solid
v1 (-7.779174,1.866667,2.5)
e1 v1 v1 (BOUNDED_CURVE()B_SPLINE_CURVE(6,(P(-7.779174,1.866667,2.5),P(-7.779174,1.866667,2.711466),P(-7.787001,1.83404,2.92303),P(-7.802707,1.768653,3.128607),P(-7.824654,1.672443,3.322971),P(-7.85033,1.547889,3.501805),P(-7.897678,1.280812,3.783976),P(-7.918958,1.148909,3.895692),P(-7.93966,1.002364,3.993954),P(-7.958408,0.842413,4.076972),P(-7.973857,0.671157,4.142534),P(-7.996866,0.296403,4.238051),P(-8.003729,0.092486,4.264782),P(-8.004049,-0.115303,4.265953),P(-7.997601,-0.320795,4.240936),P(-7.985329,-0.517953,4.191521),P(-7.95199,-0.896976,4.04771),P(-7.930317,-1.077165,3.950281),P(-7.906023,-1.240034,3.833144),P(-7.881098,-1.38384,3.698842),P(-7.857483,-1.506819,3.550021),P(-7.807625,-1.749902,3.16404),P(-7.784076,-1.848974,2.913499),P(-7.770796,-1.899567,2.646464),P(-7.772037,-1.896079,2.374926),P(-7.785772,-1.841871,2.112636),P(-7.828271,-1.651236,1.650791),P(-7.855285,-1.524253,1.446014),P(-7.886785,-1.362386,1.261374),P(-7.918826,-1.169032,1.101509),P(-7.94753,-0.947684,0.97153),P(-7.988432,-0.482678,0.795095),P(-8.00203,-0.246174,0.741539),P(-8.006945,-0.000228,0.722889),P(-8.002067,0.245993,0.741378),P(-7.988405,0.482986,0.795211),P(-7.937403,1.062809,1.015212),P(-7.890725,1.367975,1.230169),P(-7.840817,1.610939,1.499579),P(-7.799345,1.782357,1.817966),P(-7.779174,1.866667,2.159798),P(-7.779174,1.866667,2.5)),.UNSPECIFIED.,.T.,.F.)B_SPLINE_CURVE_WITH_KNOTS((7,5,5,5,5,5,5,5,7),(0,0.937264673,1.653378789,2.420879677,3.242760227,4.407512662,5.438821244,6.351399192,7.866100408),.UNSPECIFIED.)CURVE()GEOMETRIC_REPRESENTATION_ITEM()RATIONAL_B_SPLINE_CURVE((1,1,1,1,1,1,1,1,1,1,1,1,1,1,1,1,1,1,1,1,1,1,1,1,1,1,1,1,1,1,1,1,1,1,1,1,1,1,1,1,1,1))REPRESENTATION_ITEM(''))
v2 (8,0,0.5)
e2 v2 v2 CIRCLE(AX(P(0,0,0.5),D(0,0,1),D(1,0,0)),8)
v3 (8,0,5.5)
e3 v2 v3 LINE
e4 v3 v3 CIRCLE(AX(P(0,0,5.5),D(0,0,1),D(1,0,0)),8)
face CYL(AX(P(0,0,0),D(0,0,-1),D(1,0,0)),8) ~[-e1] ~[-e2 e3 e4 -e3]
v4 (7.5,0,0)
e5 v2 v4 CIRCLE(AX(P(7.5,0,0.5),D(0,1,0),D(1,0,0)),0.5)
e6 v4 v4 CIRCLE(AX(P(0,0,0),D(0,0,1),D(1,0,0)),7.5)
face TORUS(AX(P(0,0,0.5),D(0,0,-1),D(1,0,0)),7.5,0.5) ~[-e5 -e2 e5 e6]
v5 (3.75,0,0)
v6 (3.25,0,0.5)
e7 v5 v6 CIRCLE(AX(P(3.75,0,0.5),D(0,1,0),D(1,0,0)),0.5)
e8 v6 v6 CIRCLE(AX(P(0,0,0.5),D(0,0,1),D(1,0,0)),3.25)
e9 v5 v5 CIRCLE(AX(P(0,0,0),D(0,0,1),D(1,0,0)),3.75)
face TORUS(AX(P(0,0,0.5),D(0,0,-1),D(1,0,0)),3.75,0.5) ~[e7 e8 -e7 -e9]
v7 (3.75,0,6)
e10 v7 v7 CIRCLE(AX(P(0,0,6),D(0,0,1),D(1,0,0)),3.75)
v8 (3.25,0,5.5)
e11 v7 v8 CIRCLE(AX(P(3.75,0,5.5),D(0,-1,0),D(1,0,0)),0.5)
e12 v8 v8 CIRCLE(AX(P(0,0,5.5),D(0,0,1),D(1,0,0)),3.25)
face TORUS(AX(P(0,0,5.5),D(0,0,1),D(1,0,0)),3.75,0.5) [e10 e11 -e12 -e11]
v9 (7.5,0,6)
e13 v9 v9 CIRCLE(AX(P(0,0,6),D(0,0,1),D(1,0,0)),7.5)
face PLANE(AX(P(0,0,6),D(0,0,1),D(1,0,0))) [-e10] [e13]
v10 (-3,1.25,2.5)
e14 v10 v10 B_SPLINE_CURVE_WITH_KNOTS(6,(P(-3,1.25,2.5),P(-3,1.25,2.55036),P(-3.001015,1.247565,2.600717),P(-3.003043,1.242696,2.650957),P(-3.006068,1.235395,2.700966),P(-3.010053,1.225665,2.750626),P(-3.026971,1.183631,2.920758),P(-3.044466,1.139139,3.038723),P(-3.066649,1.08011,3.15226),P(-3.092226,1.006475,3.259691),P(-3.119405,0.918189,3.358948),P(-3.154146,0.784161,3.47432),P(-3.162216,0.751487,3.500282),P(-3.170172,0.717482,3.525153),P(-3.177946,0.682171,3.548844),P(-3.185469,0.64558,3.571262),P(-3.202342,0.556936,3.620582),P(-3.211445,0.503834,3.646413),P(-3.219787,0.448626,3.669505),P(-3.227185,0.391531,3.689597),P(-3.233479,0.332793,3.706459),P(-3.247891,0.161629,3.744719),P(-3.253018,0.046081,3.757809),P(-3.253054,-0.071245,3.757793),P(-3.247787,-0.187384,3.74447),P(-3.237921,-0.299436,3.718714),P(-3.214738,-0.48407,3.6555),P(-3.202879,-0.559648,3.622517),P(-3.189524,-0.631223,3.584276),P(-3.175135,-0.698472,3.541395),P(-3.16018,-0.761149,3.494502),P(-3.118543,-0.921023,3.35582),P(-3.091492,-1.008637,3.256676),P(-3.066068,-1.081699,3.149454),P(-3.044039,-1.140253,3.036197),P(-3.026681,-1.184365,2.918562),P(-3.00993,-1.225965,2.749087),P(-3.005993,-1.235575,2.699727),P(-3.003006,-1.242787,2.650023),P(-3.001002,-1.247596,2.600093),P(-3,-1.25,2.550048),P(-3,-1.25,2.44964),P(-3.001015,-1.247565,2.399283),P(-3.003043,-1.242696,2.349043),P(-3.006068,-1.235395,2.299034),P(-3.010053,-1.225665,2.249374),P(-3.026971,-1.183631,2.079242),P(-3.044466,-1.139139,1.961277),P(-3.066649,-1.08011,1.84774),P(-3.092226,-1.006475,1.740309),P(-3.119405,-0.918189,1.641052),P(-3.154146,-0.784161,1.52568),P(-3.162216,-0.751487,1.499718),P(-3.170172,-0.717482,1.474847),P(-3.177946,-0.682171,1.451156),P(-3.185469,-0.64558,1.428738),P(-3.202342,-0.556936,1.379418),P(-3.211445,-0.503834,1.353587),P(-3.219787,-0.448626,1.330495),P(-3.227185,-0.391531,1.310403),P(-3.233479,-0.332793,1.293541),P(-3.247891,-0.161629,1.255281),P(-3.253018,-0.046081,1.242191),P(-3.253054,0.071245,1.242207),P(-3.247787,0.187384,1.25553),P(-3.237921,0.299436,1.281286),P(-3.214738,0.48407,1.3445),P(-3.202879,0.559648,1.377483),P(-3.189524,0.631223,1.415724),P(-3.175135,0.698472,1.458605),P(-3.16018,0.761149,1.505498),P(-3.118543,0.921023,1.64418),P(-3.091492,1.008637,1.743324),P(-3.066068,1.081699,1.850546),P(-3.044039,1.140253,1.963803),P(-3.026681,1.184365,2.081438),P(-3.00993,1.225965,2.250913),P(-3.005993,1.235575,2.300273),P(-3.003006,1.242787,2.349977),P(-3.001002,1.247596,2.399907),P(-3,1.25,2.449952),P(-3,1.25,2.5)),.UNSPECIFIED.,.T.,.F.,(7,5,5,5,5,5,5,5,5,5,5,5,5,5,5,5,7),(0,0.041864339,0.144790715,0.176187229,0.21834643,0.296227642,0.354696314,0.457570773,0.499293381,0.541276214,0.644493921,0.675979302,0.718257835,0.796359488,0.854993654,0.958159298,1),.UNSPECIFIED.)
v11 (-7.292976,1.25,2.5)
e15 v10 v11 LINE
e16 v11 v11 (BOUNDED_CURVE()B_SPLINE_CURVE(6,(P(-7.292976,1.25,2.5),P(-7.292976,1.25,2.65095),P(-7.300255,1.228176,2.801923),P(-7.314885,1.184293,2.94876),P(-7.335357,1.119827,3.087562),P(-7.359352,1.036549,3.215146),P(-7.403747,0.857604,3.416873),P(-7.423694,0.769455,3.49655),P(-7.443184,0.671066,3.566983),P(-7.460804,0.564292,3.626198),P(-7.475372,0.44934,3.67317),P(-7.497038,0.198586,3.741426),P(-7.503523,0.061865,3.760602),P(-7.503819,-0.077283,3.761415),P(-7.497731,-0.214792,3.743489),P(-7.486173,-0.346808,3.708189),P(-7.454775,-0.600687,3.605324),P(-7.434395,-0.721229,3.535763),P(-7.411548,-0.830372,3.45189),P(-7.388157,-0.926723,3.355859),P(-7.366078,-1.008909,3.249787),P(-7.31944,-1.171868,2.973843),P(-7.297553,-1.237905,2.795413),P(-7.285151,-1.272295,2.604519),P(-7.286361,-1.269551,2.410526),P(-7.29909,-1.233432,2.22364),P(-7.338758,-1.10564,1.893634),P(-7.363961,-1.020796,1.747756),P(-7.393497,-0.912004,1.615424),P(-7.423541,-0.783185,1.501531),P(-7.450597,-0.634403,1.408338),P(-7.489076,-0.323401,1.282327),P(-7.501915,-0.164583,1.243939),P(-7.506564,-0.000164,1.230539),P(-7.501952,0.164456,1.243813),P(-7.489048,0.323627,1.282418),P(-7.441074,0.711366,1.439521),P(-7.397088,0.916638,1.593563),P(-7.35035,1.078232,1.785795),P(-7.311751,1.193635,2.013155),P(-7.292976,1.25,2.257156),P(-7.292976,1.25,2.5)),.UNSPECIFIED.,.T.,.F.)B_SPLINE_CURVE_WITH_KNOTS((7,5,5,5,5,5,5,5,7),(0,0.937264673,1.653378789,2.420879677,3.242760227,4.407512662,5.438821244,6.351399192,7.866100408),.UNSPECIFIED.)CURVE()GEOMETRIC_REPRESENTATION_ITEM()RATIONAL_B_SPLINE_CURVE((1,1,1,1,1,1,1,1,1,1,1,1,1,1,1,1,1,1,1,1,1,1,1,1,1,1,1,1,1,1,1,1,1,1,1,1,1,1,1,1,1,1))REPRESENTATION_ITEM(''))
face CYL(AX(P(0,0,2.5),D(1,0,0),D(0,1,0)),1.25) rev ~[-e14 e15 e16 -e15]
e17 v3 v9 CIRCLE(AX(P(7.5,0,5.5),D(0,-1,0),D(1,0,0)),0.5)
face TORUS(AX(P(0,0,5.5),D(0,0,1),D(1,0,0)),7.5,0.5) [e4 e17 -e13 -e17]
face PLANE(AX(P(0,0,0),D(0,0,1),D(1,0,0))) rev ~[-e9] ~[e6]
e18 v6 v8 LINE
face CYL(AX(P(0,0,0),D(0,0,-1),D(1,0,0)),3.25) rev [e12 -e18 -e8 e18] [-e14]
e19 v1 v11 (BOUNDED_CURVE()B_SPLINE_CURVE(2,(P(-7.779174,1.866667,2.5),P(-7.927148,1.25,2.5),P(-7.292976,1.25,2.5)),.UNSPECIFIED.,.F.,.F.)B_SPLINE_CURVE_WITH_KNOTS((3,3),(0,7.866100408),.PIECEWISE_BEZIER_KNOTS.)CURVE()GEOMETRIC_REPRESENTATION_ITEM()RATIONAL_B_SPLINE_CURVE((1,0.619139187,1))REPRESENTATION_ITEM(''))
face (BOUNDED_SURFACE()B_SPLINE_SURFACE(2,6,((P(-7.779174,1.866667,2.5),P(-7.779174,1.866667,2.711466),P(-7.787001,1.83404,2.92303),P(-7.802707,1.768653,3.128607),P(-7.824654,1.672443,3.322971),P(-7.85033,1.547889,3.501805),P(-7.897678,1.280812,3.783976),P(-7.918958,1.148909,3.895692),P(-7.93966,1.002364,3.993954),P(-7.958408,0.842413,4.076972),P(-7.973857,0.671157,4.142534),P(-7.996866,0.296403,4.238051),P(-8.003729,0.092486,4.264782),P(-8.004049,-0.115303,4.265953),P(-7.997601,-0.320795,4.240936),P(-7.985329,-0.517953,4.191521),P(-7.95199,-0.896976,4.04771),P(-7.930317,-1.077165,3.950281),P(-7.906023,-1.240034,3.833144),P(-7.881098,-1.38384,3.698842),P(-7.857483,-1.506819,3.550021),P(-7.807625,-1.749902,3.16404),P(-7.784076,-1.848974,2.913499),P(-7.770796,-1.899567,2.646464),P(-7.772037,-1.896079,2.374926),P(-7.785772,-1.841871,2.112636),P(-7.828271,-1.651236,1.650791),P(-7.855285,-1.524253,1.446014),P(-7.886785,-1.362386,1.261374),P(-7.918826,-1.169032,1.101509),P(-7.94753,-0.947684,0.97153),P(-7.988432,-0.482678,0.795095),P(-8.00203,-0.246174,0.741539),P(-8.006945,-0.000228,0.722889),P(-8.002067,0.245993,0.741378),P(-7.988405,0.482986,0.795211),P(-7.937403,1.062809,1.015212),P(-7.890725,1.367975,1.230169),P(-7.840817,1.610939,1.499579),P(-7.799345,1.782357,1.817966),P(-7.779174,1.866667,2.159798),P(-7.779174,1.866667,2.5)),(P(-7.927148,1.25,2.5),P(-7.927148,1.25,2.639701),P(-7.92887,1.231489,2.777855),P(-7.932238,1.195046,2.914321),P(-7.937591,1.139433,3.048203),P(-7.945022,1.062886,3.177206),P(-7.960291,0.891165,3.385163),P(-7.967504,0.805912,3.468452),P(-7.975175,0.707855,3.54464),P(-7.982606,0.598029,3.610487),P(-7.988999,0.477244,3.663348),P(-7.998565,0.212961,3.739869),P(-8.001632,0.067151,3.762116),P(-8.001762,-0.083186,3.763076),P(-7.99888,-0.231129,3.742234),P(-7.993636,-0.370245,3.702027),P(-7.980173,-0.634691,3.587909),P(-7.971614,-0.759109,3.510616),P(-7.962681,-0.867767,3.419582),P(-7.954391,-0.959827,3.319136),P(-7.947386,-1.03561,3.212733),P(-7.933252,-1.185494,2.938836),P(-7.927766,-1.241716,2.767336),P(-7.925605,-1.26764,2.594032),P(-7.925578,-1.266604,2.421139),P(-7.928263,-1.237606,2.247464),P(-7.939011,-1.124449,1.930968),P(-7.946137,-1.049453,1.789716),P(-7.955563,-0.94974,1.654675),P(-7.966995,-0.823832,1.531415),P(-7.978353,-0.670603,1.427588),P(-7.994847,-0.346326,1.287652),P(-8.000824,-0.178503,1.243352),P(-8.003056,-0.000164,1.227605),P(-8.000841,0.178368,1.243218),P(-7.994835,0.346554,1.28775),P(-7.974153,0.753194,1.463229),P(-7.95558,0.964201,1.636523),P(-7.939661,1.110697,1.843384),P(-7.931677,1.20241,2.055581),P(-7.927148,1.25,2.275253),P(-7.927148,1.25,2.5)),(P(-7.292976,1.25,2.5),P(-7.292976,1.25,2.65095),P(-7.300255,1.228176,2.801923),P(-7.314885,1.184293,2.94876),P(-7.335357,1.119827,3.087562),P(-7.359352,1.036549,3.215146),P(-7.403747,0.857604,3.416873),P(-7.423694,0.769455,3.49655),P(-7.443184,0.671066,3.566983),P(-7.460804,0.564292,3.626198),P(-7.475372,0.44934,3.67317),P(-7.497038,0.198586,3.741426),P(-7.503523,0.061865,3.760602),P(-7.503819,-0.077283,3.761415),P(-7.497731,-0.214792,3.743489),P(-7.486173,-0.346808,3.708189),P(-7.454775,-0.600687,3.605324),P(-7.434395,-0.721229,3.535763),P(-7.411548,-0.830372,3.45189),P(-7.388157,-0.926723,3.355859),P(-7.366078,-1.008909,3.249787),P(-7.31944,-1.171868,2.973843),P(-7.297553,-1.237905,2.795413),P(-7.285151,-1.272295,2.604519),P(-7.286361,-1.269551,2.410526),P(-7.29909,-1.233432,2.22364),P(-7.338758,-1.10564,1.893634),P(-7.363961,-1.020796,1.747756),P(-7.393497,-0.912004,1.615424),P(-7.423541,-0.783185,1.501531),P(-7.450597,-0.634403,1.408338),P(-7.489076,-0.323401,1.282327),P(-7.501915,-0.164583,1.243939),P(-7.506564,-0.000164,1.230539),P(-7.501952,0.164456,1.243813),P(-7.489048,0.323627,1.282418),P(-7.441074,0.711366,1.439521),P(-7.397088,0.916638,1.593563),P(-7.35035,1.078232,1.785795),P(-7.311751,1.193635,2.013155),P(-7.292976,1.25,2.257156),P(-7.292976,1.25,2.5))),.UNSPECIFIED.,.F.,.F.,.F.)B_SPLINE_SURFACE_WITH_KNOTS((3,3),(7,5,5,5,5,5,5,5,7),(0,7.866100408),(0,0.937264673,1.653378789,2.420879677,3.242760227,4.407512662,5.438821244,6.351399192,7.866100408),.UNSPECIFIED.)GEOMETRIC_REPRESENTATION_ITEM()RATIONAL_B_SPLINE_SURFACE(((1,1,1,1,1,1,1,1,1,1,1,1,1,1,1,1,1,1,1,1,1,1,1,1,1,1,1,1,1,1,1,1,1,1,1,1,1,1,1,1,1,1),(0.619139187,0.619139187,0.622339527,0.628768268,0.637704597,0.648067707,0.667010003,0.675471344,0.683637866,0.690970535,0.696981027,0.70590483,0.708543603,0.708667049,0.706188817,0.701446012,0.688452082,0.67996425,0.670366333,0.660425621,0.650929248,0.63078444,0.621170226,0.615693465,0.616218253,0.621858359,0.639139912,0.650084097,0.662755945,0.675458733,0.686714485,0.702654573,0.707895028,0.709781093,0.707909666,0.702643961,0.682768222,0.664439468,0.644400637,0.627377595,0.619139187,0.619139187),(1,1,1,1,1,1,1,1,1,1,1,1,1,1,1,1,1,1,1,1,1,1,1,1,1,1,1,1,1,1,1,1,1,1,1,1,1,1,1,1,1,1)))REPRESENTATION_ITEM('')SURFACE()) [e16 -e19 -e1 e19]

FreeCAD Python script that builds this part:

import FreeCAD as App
import Part
import Sketcher

V = App.Vector


def edges_at(feature, points):
    """Names of the edges that pass closest to the given points."""
    edges = feature.Shape.Edges
    near = lambda p: min(range(len(edges)), key=lambda i: edges[i].distToShape(Part.Vertex(*p))[0])
    return sorted({f"Edge{near(p) + 1}" for p in points})

doc = App.newDocument("Part")
body = doc.addObject("PartDesign::Body", "Body")

sketch1 = doc.addObject("Sketcher::SketchObject", "Sketch")
body.addObject(sketch1)
sketch1.AttachmentSupport = (doc.XY_Plane, [""])
sketch1.MapMode = "FlatFace"
sketch1.addGeometry(Part.Circle(V(0, 0, 0), V(0, 0, 1), 8), False)
sketch1.addGeometry(Part.Circle(V(0, 0, 0), V(0, 0, 1), 3.2), False)
sketch1.addConstraint(Sketcher.Constraint("Coincident", 0, 3, -1, 1))
sketch1.addConstraint(Sketcher.Constraint("Coincident", 1, 3, -1, 1))
sketch1.addConstraint(Sketcher.Constraint("Diameter", 0, 16.0))
sketch1.addConstraint(Sketcher.Constraint("Diameter", 1, 6.5))
pad1 = doc.addObject("PartDesign::Pad", "Pad")
body.addObject(pad1)
pad1.Profile = sketch1
pad1.Length = 6

sketch2 = doc.addObject("Sketcher::SketchObject", "Sketch001")
body.addObject(sketch2)
sketch2.AttachmentSupport = (doc.YZ_Plane, [""])
sketch2.MapMode = "FlatFace"
sketch2.addGeometry(Part.Circle(V(0, 2.5, 0), V(0, 0, 1), 1.2), False)
sketch2.addConstraint(Sketcher.Constraint("PointOnObject", 0, 3, -2))
sketch2.addConstraint(Sketcher.Constraint("Diameter", 0, 2.5))
sketch2.addConstraint(Sketcher.Constraint("DistanceY", -1, 1, 0, 3, 2.5))
pocket1 = doc.addObject("PartDesign::Pocket", "Pocket")
body.addObject(pocket1)
pocket1.Profile = sketch2
pocket1.Length = 20
doc.recompute()

fillet = doc.addObject("PartDesign::Fillet", "Fillet")
body.addObject(fillet)
fillet.Base = (pocket1, edges_at(pocket1, [(-8, 0, 6)]))
fillet.Radius = 0.5
doc.recompute()

fillet2 = doc.addObject("PartDesign::Fillet", "Fillet001")
body.addObject(fillet2)
fillet2.Base = (fillet, edges_at(fillet, [
    (-7.902, -1.25, 2.498),
    (-8, 0, 0),
    (-3.25, 0, 0),
    (-3.25, 0, 6),
]))
fillet2.Radius = 0.5

doc.recompute()
